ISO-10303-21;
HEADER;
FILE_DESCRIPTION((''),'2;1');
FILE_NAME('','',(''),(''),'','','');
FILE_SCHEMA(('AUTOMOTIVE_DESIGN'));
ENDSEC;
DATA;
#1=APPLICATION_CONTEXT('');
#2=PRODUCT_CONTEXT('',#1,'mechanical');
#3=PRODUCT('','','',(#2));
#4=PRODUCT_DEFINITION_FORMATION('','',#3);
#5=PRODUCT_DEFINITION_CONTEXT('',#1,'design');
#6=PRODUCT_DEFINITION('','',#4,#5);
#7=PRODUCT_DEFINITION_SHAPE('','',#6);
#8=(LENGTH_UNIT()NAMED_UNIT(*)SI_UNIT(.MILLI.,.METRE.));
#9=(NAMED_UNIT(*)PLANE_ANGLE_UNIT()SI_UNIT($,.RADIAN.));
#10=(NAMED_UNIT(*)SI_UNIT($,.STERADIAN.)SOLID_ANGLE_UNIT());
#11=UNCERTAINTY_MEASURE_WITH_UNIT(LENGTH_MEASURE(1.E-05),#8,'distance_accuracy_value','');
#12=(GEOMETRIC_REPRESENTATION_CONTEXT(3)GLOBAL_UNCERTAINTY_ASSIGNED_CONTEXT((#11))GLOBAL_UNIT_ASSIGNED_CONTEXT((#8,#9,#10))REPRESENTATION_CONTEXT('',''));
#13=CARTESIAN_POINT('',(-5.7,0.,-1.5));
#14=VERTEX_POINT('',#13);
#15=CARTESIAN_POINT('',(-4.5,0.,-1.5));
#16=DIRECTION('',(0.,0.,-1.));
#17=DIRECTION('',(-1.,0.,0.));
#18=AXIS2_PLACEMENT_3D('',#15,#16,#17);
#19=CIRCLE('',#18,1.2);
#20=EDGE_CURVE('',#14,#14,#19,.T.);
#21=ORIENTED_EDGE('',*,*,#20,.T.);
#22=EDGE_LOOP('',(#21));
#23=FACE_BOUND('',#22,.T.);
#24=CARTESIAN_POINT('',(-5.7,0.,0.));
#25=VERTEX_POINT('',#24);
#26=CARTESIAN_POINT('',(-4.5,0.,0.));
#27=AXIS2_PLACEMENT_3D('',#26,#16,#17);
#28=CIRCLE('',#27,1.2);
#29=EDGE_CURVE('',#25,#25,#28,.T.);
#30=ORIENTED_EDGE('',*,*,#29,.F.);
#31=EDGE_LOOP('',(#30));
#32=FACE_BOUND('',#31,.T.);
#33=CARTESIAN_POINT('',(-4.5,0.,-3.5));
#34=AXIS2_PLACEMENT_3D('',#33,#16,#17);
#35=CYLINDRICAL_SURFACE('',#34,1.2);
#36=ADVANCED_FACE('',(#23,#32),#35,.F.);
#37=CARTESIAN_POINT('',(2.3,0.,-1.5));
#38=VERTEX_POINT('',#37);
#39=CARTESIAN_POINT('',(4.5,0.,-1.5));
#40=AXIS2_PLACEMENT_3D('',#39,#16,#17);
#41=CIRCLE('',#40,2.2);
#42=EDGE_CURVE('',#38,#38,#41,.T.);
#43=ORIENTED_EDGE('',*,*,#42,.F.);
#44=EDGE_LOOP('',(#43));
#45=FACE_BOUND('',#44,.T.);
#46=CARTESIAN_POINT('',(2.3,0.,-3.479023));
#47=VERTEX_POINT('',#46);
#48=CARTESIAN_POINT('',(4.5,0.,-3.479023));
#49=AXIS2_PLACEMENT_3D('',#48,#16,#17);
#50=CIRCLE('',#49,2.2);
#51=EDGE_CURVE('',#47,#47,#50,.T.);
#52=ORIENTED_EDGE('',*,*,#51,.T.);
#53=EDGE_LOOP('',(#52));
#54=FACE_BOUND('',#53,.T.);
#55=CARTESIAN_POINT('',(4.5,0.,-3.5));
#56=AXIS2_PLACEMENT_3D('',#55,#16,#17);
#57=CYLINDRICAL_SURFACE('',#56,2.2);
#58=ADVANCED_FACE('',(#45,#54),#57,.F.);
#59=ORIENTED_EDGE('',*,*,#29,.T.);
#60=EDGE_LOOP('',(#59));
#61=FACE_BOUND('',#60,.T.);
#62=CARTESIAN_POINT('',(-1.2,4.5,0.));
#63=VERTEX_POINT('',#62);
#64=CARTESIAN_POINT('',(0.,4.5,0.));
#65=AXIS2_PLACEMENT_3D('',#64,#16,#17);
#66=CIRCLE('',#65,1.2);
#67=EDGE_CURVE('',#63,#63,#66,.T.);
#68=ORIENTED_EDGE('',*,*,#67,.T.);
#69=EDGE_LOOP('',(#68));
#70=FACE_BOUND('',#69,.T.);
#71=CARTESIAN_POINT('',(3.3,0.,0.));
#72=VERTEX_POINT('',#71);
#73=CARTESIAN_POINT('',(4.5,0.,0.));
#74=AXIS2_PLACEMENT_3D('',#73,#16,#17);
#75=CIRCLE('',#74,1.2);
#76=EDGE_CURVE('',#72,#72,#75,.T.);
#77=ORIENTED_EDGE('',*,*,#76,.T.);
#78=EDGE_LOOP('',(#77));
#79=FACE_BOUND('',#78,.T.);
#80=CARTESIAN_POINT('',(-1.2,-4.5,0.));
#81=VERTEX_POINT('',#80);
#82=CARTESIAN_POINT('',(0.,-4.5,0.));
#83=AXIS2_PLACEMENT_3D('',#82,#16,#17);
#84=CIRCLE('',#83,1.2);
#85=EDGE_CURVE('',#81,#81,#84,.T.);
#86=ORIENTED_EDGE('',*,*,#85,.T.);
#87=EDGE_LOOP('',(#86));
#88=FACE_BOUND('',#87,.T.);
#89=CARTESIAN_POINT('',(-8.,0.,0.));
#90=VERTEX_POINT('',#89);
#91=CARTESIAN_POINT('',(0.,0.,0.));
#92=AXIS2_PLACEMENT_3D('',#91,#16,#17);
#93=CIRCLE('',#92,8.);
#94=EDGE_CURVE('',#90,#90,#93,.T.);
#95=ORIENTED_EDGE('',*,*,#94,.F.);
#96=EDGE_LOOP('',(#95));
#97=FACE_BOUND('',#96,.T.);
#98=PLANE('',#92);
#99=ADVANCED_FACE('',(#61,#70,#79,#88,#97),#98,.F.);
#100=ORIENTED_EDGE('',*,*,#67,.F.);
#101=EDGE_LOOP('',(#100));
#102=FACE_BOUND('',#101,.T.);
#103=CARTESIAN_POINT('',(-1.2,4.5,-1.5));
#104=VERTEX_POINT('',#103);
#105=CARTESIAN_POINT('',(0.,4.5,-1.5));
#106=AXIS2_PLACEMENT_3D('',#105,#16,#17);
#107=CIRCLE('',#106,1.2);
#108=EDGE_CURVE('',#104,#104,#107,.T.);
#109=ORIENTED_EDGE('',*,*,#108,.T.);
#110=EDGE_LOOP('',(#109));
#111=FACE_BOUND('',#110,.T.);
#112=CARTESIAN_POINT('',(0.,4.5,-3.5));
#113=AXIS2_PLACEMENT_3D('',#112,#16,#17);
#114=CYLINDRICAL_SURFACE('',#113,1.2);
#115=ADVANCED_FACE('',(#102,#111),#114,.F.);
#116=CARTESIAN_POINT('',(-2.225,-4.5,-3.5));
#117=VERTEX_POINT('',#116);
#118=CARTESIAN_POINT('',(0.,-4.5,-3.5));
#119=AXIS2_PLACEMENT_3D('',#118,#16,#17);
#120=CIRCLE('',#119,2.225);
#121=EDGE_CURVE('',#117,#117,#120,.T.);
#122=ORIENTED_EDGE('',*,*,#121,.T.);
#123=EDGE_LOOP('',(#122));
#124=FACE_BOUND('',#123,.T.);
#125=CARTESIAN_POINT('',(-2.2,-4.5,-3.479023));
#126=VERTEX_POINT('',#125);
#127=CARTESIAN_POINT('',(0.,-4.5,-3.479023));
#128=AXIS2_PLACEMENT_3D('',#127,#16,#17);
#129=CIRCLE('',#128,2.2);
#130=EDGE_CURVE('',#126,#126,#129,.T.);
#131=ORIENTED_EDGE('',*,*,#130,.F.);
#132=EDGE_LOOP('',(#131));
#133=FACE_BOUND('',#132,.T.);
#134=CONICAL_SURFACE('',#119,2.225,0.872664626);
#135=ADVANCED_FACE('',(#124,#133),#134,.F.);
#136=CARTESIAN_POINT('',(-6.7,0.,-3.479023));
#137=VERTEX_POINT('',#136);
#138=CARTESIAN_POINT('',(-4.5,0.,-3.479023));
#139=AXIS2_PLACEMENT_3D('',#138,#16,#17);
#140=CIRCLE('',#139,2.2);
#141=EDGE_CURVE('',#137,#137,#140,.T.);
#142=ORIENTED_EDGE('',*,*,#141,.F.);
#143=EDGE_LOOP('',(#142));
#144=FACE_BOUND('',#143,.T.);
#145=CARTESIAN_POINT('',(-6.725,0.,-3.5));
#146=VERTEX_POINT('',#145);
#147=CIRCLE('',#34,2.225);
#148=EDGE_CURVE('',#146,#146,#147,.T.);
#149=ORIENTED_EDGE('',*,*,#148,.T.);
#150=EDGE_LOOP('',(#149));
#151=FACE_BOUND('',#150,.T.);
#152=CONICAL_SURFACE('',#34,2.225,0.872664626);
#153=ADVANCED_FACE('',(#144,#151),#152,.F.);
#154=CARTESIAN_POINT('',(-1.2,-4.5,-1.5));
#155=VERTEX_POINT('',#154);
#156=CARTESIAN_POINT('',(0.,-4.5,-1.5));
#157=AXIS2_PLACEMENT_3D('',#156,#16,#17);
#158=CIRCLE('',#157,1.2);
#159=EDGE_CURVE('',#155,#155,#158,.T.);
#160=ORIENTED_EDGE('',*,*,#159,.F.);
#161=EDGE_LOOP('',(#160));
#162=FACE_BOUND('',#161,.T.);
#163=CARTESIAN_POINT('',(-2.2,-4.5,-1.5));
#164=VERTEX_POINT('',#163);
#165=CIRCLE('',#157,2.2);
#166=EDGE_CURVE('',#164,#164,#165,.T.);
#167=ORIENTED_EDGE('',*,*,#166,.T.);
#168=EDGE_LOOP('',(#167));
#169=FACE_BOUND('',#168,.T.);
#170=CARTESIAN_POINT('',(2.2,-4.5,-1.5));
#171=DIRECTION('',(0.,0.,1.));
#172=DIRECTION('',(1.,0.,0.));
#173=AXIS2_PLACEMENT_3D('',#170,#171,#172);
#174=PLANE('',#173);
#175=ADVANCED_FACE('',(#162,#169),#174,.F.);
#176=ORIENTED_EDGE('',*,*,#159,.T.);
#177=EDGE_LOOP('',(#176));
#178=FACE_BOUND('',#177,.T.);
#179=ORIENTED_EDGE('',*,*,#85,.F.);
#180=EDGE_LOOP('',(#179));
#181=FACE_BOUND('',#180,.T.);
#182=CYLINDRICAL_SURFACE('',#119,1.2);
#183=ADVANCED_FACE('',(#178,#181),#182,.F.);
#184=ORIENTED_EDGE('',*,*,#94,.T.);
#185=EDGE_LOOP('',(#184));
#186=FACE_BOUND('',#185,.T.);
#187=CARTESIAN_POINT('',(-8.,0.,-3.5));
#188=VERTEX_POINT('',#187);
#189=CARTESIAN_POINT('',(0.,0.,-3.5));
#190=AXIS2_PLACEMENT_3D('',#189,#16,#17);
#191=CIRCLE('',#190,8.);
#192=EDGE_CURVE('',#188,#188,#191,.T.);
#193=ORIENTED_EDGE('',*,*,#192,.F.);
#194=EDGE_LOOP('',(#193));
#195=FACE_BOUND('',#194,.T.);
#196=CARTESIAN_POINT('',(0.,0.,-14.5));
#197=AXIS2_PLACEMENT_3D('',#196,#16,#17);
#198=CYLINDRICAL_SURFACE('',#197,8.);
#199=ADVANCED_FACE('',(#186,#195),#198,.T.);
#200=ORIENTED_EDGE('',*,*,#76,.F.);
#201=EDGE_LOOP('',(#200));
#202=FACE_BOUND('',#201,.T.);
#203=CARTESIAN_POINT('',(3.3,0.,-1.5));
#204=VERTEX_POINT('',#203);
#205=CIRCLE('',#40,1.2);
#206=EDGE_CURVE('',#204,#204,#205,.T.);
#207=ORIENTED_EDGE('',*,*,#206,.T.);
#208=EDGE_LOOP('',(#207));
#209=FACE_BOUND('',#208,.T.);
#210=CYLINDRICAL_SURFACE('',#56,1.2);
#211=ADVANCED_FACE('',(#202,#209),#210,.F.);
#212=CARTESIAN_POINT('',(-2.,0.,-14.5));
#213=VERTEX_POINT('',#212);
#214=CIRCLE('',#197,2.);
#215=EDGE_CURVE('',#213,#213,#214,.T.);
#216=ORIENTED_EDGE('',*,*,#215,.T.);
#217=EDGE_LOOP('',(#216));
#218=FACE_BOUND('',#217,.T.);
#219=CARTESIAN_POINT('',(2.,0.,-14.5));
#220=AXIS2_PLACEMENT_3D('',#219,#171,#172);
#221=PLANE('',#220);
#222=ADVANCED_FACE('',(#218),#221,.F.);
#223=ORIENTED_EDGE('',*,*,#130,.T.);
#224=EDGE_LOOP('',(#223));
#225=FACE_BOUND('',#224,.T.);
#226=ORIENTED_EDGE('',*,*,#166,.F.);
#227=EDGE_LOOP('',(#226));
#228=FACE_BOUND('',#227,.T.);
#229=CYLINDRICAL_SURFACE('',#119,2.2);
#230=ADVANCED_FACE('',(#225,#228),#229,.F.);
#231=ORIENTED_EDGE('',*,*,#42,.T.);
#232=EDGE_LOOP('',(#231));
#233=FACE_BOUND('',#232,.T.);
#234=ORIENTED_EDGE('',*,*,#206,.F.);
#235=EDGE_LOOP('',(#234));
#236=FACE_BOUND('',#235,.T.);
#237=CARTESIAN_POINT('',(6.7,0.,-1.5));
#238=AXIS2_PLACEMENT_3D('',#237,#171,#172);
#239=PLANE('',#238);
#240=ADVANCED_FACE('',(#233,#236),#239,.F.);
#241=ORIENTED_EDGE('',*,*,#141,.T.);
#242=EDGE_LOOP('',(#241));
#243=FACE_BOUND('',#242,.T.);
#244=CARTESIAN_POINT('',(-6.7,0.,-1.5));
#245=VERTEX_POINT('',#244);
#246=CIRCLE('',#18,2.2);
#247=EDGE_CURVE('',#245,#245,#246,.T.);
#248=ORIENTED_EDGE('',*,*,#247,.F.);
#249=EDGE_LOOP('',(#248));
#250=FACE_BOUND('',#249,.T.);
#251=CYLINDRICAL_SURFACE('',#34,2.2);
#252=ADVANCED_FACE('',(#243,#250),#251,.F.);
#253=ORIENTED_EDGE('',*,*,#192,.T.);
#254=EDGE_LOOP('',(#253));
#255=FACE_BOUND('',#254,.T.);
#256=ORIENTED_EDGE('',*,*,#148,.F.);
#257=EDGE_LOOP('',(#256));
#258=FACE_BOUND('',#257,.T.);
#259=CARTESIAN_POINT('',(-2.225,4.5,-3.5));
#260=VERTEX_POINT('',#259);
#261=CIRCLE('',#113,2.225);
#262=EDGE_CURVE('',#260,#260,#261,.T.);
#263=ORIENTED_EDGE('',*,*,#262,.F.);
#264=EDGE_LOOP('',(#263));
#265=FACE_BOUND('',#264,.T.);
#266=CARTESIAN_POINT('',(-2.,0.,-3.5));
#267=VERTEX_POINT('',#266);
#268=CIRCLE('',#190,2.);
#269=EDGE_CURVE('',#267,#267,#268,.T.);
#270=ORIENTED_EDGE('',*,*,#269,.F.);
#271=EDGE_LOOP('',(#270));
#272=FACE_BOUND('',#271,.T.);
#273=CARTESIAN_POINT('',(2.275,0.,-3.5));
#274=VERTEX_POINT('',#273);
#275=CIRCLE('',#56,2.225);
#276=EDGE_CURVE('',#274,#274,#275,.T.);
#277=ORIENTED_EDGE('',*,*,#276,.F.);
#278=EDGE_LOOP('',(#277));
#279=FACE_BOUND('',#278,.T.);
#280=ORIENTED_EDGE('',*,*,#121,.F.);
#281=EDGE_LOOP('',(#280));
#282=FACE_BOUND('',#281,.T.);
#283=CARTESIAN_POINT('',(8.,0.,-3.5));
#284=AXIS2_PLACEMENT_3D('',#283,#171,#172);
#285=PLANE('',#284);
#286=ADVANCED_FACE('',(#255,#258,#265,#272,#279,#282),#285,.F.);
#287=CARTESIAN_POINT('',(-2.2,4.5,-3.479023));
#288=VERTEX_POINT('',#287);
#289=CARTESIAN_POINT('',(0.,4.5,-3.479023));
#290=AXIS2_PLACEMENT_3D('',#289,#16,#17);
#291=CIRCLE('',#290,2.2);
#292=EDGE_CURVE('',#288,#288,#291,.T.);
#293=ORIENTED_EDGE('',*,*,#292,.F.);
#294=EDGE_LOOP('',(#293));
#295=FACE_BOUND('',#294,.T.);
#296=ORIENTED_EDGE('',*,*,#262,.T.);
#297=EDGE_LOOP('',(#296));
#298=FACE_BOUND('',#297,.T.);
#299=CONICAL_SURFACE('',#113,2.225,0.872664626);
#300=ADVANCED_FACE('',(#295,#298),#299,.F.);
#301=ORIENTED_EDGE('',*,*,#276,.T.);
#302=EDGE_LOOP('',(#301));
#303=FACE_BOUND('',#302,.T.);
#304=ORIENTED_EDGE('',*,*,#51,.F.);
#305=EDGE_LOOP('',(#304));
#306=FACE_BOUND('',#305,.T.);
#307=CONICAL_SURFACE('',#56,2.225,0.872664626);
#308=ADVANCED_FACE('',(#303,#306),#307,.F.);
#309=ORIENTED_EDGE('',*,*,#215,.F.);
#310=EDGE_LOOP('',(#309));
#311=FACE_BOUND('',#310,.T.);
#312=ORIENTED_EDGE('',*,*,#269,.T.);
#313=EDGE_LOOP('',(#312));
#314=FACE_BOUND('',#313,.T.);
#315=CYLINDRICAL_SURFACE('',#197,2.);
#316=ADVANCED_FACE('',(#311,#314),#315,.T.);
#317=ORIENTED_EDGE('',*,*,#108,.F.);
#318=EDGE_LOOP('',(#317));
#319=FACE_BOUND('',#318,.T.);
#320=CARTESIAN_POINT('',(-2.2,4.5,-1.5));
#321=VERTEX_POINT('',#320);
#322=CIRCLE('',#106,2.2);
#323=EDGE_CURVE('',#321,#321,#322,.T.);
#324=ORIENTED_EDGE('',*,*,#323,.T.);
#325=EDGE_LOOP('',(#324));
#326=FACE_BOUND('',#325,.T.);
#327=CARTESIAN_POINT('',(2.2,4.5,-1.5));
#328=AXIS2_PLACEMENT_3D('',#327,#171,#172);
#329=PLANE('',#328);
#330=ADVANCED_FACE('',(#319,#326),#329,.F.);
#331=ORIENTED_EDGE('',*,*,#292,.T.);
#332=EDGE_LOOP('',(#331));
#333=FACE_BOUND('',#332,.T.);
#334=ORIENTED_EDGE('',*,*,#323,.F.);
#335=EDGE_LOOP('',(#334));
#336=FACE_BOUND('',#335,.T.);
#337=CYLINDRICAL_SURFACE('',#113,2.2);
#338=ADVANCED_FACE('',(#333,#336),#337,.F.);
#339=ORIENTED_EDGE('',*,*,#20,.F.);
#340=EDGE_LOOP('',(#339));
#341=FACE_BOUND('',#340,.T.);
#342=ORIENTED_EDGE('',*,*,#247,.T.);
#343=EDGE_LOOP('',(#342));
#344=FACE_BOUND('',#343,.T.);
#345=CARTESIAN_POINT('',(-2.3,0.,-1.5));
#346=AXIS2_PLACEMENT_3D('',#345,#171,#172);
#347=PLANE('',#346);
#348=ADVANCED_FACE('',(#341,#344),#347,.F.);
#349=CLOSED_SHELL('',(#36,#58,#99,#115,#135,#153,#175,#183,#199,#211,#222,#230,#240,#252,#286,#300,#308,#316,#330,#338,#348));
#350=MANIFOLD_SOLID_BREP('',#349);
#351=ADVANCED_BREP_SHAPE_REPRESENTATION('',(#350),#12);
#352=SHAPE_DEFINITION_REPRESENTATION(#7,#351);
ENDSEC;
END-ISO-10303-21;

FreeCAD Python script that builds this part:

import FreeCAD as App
import Part
import Sketcher
Q = App.Units.Quantity

doc = App.newDocument("Part")
body = doc.addObject("PartDesign::Body", "Body")

sketch1 = doc.addObject("Sketcher::SketchObject", "Sketch")
body.addObject(sketch1)
sketch1.AttachmentSupport = (doc.XZ_Plane, [""])
sketch1.MapMode = "FlatFace"
sketch1.addGeometry([
    Part.LineSegment(App.Vector(0, 0, 0), App.Vector(8, 0, 0)),
    Part.LineSegment(App.Vector(8, 0, 0), App.Vector(8, -3.5, 0)),
    Part.LineSegment(App.Vector(8, -3.5, 0), App.Vector(2, -3.5, 0)),
    Part.LineSegment(App.Vector(2, -3.5, 0), App.Vector(2, -14.5, 0)),
    Part.LineSegment(App.Vector(2, -14.5, 0), App.Vector(0, -14.5, 0)),
    Part.LineSegment(App.Vector(0, -14.5, 0), App.Vector(0, 0, 0)),
], False)
sketch1.addConstraint([
    Sketcher.Constraint("Coincident", 0, 2, 1, 1),
    Sketcher.Constraint("Coincident", 1, 2, 2, 1),
    Sketcher.Constraint("Coincident", 2, 2, 3, 1),
    Sketcher.Constraint("Coincident", 3, 2, 4, 1),
    Sketcher.Constraint("Coincident", 4, 2, 5, 1),
    Sketcher.Constraint("Coincident", 5, 2, 0, 1),
    Sketcher.Constraint("Horizontal", 0),
    Sketcher.Constraint("Vertical", 1),
    Sketcher.Constraint("Horizontal", 2),
    Sketcher.Constraint("Vertical", 3),
    Sketcher.Constraint("Horizontal", 4),
    Sketcher.Constraint("Vertical", 5),
    Sketcher.Constraint("Coincident", 5, 2, -1, 1),
    Sketcher.Constraint("DistanceX", 0, 1, 0, 2, Q("8 mm")),
    Sketcher.Constraint("DistanceX", 2, 2, 2, 1, Q("6 mm")),
    Sketcher.Constraint("DistanceY", 3, 2, 3, 1, Q("11 mm")),
    Sketcher.Constraint("DistanceY", 1, 2, 1, 1, Q("3.5 mm")),
])
revolution = doc.addObject("PartDesign::Revolution", "Revolution")
body.addObject(revolution)
revolution.Profile = sketch1
revolution.ReferenceAxis = (sketch1, ["V_Axis"])
revolution.Angle = 360

sketch2 = doc.addObject("Sketcher::SketchObject", "Sketch001")
body.addObject(sketch2)
sketch2.AttachmentSupport = (doc.YZ_Plane, [""])
sketch2.MapMode = "FlatFace"
sketch2.addGeometry([
    Part.LineSegment(App.Vector(4.5, 0, 0), App.Vector(4.5, -3.5, 0)),
    Part.LineSegment(App.Vector(4.5, -3.5, 0), App.Vector(6.725, -3.5, 0)),
    Part.LineSegment(App.Vector(6.725, -3.5, 0), App.Vector(6.7, -3.479, 0)),
    Part.LineSegment(App.Vector(6.7, -3.479, 0), App.Vector(6.7, -1.5, 0)),
    Part.LineSegment(App.Vector(6.7, -1.5, 0), App.Vector(5.7, -1.5, 0)),
    Part.LineSegment(App.Vector(5.7, -1.5, 0), App.Vector(5.7, 0, 0)),
    Part.LineSegment(App.Vector(5.7, 0, 0), App.Vector(4.5, 0, 0)),
], False)
sketch2.addGeometry(Part.LineSegment(App.Vector(4.5, -3.5, 0), App.Vector(4.5, 0, 0)), True)
sketch2.addConstraint([
    Sketcher.Constraint("Coincident", 0, 2, 1, 1),
    Sketcher.Constraint("Coincident", 1, 2, 2, 1),
    Sketcher.Constraint("Coincident", 2, 2, 3, 1),
    Sketcher.Constraint("Coincident", 3, 2, 4, 1),
    Sketcher.Constraint("Coincident", 4, 2, 5, 1),
    Sketcher.Constraint("Coincident", 5, 2, 6, 1),
    Sketcher.Constraint("Coincident", 6, 2, 0, 1),
    Sketcher.Constraint("Vertical", 0),
    Sketcher.Constraint("Horizontal", 1),
    Sketcher.Constraint("Vertical", 3),
    Sketcher.Constraint("Horizontal", 4),
    Sketcher.Constraint("Vertical", 5),
    Sketcher.Constraint("Horizontal", 6),
    Sketcher.Constraint("Vertical", 7),
    Sketcher.Constraint("Coincident", 7, 1, 0, 2),
    Sketcher.Constraint("PointOnObject", 5, 2, -1),
    Sketcher.Constraint("PointOnObject", 7, 2, -1),
    Sketcher.Constraint("DistanceX", 4, 2, 4, 1, Q("1 mm")),
    Sketcher.Constraint("Angle", 2, Q("140 deg")),
    Sketcher.Constraint("DistanceX", 6, 2, 6, 1, Q("1.2 mm")),
    Sketcher.Constraint("DistanceY", 0, 2, 0, 1, Q("3.5 mm")),
    Sketcher.Constraint("DistanceY", 5, 1, 5, 2, Q("1.5 mm")),
    Sketcher.Constraint("DistanceX", -1, 1, 0, 2, Q("4.5 mm")),
    Sketcher.Constraint("DistanceX", 1, 1, 1, 2, Q("2.225 mm")),
])
groove = doc.addObject("PartDesign::Groove", "Groove")
body.addObject(groove)
groove.Profile = sketch2
groove.ReferenceAxis = (sketch2, ["Axis0"])
groove.Angle = 360
doc.recompute()

datumline = doc.addObject("PartDesign::Line", "DatumLine")
body.addObject(datumline)
datumline.Placement = App.Placement(App.Vector(0, 0, 0), App.Rotation(App.Vector(0, 0, 1), App.Vector(-0.707106781, -0.707106781, 0)))
linearpattern = doc.addObject("PartDesign::LinearPattern", "LinearPattern")
body.addObject(linearpattern)
linearpattern.Originals = [groove]
linearpattern.Direction = (datumline, [""])
linearpattern.Mode = "offset"
linearpattern.Offset = 6.363961
linearpattern.Occurrences = 2
body.Tip = linearpattern
doc.recompute()

linearpattern2 = doc.addObject("PartDesign::LinearPattern", "LinearPattern001")
body.addObject(linearpattern2)
linearpattern2.Originals = [groove]
linearpattern2.Direction = (doc.Y_Axis, [""])
linearpattern2.Mode = "offset"
linearpattern2.Offset = 9
linearpattern2.Occurrences = 2
linearpattern2.Reversed = True
body.Tip = linearpattern2
doc.recompute()

datumline2 = doc.addObject("PartDesign::Line", "DatumLine001")
body.addObject(datumline2)
datumline2.Placement = App.Placement(App.Vector(0, 0, 0), App.Rotation(App.Vector(0, 0, 1), App.Vector(0.707106781, -0.707106781, 0)))
linearpattern3 = doc.addObject("PartDesign::LinearPattern", "LinearPattern002")
body.addObject(linearpattern3)
linearpattern3.Originals = [groove]
linearpattern3.Direction = (datumline2, [""])
linearpattern3.Mode = "offset"
linearpattern3.Offset = 6.363961
linearpattern3.Occurrences = 2
body.Tip = linearpattern3

doc.recompute()
